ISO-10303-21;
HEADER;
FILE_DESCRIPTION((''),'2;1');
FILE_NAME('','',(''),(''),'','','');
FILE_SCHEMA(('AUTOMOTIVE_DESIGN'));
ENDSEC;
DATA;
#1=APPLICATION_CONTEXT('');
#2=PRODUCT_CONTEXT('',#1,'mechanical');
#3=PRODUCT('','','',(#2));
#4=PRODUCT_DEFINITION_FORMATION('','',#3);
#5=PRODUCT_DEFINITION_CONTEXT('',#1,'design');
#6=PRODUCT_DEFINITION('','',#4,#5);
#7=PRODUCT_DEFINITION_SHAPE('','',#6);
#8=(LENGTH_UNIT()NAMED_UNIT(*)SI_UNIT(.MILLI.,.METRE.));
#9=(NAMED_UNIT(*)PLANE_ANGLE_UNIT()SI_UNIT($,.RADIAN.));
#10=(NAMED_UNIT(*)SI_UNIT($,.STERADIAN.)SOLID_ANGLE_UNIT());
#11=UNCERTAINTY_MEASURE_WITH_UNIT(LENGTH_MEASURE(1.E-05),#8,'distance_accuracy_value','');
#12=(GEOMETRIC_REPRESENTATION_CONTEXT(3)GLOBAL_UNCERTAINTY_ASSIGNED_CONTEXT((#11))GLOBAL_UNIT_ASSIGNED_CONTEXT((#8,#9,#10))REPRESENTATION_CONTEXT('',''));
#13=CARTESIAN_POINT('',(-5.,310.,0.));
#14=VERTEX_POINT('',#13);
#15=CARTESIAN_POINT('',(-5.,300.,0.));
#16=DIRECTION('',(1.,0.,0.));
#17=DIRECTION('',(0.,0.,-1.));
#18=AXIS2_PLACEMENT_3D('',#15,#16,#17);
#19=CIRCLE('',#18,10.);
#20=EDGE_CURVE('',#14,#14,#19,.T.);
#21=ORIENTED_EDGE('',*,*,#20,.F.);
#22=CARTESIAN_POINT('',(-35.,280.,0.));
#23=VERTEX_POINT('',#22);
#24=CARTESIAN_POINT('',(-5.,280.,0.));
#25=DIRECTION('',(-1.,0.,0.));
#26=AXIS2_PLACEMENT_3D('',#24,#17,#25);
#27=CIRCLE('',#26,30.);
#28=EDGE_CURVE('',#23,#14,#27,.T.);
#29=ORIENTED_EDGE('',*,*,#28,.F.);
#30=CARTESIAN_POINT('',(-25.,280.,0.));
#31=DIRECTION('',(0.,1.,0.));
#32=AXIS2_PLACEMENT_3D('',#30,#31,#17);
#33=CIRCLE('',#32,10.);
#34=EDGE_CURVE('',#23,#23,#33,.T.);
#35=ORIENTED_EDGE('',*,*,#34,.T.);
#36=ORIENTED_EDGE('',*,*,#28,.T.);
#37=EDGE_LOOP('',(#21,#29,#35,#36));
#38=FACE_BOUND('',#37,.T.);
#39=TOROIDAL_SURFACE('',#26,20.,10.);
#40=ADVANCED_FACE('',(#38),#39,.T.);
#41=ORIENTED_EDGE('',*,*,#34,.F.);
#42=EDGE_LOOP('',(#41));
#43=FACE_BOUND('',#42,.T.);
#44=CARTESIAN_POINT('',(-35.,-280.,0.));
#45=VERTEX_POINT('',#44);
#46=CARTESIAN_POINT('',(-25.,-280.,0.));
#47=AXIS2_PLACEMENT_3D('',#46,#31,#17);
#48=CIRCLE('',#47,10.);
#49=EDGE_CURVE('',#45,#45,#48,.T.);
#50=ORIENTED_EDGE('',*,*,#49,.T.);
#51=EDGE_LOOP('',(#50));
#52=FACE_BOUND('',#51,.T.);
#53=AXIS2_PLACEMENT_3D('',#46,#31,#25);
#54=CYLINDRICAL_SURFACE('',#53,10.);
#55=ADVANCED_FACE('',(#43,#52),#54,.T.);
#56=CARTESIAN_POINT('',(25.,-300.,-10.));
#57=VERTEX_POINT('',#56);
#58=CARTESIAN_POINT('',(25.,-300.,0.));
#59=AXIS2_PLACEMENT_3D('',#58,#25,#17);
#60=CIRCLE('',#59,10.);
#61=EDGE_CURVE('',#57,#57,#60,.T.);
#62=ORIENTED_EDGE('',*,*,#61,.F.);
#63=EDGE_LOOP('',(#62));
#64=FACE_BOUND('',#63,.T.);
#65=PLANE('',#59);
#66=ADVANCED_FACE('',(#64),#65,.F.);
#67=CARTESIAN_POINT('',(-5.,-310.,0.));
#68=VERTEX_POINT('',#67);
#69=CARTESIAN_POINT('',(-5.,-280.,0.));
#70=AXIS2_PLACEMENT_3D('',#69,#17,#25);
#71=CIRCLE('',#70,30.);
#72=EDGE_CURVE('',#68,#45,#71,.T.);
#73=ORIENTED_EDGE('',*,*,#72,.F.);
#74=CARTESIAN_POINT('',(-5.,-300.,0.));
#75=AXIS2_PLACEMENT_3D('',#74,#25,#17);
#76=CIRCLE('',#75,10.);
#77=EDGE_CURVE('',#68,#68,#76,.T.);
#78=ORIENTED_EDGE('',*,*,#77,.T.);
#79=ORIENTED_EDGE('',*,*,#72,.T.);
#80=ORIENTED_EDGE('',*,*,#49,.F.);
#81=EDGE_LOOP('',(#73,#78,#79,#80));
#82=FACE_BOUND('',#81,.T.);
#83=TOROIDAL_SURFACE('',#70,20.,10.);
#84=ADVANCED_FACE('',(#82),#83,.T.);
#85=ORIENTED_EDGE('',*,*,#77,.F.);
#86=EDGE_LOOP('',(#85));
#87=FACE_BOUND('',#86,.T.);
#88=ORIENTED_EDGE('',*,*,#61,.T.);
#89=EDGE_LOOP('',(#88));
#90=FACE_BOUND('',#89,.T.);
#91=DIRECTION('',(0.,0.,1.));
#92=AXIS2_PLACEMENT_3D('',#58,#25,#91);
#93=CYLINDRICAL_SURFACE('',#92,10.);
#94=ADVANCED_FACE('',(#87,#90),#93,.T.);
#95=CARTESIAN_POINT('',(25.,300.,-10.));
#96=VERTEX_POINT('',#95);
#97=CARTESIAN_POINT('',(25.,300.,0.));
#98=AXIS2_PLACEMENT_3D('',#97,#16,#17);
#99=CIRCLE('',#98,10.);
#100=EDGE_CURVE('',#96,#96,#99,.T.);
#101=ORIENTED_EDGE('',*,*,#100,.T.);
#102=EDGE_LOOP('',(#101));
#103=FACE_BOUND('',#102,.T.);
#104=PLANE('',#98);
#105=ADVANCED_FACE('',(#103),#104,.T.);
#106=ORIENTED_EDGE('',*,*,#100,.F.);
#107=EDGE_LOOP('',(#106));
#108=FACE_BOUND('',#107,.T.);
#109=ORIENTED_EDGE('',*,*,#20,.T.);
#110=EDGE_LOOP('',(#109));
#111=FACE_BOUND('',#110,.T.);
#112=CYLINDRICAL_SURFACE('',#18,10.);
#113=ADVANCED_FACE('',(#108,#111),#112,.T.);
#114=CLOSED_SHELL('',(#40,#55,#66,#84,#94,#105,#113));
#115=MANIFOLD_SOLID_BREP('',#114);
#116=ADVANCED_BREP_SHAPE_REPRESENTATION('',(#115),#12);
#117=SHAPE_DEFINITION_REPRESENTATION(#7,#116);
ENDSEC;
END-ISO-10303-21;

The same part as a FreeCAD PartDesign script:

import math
import FreeCAD as App
import Part
import Sketcher
from FreeCAD import Vector
Q = App.Units.Quantity

doc = App.newDocument("Part")
body = doc.addObject("PartDesign::Body", "Body")

# Sketch on YZ plane
sketch1 = body.newObject("Sketcher::SketchObject", "Sketch")
sketch1.AttachmentSupport = (doc.getObject("YZ_Plane"), [""])
sketch1.MapMode = "FlatFace"
sketch1.AttachmentOffset = App.Placement(Vector(0, 0, 25), App.Rotation())
sketch1.addGeometry(Part.Circle(Vector(300, 0, 0), Vector(0, 0, 1), 10), False)
sketch1.addConstraint([
    Sketcher.Constraint("PointOnObject", 0, 3, -1),
    Sketcher.Constraint("Diameter", 0, Q("20 mm")),
    Sketcher.Constraint("DistanceX", -1, 1, 0, 3, Q("300 mm")),
])

# Sketch on XY plane
sketch2 = body.newObject("Sketcher::SketchObject", "Sketch001")
sketch2.AttachmentSupport = (doc.getObject("XY_Plane"), [""])
sketch2.MapMode = "FlatFace"
sketch2.addGeometry([
    Part.LineSegment(Vector(25, 300, 0), Vector(-5, 300, 0)),  # 0
    Part.ArcOfCircle(Part.Circle(Vector(-5, 280, 0), Vector(0, 0, 1), 20), math.radians(90), math.radians(180)),  # 1
    Part.LineSegment(Vector(-25, 280, 0), Vector(-25, -280, 0)),  # 2
    Part.ArcOfCircle(Part.Circle(Vector(-5, -280, 0), Vector(0, 0, 1), 20), math.radians(180), math.radians(270)),  # 3
    Part.LineSegment(Vector(-5, -300, 0), Vector(25, -300, 0)),  # 4
], False)
sketch2.addConstraint([
    Sketcher.Constraint("Tangent", 0, 2, 1, 1),
    Sketcher.Constraint("Tangent", 1, 2, 2, 1),
    Sketcher.Constraint("Tangent", 2, 2, 3, 1),
    Sketcher.Constraint("Tangent", 3, 2, 4, 1),
    Sketcher.Constraint("Horizontal", 0),
    Sketcher.Constraint("Vertical", 2),
    Sketcher.Constraint("Horizontal", 4),
    Sketcher.Constraint("Equal", 1, 3),
    Sketcher.Constraint("Symmetric", 0, 1, 4, 2, -1),
    Sketcher.Constraint("Radius", 1, Q("20 mm")),
    Sketcher.Constraint("DistanceX", 0, 2, 0, 1, Q("30 mm")),
    Sketcher.Constraint("DistanceY", 2, 2, 2, 1, Q("560 mm")),
    Sketcher.Constraint("DistanceX", 1, 3, -1, 1, Q("5 mm")),
])
doc.recompute()

additivepipe = body.newObject("PartDesign::AdditivePipe", "AdditivePipe")
additivepipe.Profile = sketch1
additivepipe.Spine = (sketch2, ["Edge1", "Edge2", "Edge3", "Edge4", "Edge5"])

doc.recompute()
